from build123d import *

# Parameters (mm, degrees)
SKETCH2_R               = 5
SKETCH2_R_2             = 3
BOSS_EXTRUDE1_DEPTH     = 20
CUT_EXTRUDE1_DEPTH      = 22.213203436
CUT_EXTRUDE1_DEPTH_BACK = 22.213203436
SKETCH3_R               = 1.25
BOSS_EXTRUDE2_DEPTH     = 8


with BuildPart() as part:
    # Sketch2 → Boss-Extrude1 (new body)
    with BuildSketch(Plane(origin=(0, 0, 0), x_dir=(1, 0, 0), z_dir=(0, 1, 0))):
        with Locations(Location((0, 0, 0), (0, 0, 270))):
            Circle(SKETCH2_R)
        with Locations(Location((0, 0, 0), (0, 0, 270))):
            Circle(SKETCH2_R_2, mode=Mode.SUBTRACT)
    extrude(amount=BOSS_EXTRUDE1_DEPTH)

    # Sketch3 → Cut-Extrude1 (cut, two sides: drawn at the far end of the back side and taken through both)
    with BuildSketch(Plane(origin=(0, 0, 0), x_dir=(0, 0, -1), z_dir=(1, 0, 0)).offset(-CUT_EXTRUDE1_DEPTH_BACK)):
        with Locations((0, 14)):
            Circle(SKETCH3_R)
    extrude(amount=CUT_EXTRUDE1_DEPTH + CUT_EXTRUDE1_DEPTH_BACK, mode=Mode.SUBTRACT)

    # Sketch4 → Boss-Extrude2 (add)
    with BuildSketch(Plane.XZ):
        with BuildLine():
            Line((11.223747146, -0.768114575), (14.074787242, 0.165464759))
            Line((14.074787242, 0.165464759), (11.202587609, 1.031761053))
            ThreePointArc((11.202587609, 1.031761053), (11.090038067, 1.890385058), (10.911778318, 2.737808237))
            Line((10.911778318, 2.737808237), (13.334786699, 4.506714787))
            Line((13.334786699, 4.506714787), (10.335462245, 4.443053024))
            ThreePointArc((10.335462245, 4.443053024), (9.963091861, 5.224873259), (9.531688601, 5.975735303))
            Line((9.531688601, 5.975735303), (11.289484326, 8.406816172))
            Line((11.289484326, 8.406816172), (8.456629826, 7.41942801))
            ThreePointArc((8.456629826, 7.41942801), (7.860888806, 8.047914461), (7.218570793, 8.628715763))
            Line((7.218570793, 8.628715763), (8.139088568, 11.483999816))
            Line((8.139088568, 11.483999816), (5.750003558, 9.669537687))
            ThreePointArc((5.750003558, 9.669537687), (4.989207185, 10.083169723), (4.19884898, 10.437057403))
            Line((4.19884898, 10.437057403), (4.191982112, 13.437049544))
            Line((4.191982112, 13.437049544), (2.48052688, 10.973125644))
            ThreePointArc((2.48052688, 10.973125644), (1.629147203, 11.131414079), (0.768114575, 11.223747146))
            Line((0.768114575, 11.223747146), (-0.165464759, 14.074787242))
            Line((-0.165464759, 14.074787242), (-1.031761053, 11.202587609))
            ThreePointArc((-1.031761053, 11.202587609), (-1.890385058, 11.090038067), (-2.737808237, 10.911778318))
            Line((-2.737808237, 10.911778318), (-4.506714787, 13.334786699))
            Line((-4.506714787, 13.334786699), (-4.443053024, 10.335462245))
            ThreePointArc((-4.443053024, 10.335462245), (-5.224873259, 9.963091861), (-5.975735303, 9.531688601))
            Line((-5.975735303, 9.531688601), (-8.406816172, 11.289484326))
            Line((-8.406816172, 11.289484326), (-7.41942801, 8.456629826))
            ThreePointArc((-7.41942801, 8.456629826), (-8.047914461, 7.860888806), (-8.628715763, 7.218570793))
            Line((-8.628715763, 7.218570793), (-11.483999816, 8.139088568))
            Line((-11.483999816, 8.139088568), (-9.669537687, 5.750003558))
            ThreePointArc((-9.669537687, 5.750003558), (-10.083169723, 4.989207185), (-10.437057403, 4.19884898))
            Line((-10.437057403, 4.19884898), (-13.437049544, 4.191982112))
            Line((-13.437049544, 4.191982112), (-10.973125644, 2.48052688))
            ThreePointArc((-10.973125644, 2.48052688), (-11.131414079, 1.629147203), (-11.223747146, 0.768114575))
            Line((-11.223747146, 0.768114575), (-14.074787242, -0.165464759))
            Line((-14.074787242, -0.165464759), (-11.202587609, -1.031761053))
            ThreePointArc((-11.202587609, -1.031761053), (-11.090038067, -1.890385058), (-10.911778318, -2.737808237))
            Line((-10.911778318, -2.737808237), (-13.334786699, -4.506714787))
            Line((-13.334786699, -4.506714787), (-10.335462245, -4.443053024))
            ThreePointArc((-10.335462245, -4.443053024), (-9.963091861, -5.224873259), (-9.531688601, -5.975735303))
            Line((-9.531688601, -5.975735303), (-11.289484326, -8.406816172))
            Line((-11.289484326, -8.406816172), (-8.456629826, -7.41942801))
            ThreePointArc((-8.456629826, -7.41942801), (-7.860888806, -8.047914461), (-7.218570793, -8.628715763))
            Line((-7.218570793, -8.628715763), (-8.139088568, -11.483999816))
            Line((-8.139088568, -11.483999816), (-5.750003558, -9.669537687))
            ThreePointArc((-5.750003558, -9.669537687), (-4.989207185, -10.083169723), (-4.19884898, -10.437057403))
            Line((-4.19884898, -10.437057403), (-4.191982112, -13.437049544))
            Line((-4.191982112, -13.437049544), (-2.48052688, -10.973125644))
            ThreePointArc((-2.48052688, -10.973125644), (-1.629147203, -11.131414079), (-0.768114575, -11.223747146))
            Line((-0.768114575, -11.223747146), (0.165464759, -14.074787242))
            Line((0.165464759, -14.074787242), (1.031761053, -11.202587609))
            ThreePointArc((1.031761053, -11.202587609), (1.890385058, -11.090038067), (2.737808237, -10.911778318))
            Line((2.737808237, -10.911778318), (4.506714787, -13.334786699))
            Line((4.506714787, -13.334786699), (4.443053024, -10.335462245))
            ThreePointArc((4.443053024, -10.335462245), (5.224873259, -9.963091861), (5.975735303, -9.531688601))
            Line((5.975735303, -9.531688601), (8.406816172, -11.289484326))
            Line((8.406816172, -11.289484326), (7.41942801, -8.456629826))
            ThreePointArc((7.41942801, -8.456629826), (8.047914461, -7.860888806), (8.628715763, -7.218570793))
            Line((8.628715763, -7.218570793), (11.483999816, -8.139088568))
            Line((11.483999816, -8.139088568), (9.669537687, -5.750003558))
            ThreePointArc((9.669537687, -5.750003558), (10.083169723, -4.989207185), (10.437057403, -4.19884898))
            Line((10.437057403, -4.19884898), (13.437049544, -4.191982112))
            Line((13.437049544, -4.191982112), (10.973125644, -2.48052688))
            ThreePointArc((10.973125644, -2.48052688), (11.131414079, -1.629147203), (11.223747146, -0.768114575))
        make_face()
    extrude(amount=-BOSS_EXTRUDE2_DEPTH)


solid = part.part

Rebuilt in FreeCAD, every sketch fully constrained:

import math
import FreeCAD as App
import Part
import Sketcher
from FreeCAD import Vector
Q = App.Units.Quantity

doc = App.newDocument("Part")
params = doc.addObject("Spreadsheet::Sheet", "Params")
for row, (alias, value) in enumerate([
    ("sketch1_diameter", "10 mm"),
    ("sketch1_diameter2", "6 mm"),
    ("pad1_length", "20 mm"),
    ("sketch2_diameter", "2.5 mm"),
    ("sketch3_radius", "11.25 mm"),
    ("sketch3_length", "3 mm"),
    ("pad2_length", "8 mm"),
], start=1):
    params.set(f"A{row}", alias)
    params.set(f"B{row}", "=" + value)
    params.setAlias(f"B{row}", alias)

body = doc.addObject("PartDesign::Body", "Body")

sketch1 = body.newObject("Sketcher::SketchObject", "Sketch")
sketch1.AttachmentSupport = (doc.getObject("XZ_Plane"), [""])
sketch1.MapMode = "FlatFace"
sketch1.addGeometry([
    Part.Circle(Vector(0, 0, 0), Vector(0, 0, 1), 5),
    Part.Circle(Vector(0, 0, 0), Vector(0, 0, 1), 3),
], False)
sketch1.addConstraint([
    Sketcher.Constraint("Coincident", 0, 3, -1, 1),
    Sketcher.Constraint("Coincident", 1, 3, -1, 1),
    Sketcher.Constraint("Diameter", 0, Q("10 mm")),
    Sketcher.Constraint("Diameter", 1, Q("6 mm")),
])
sketch1.setExpression("Constraints[2]", "Params.sketch1_diameter")
sketch1.setExpression("Constraints[3]", "Params.sketch1_diameter2")
pad1 = body.newObject("PartDesign::Pad", "Pad")
pad1.Profile = sketch1
pad1.setExpression("Length", "Params.pad1_length")
pad1.Reversed = True

sketch2 = body.newObject("Sketcher::SketchObject", "Sketch001")
sketch2.AttachmentSupport = (doc.getObject("YZ_Plane"), [""])
sketch2.MapMode = "FlatFace"
sketch2.addGeometry(Part.Circle(Vector(14, 0, 0), Vector(0, 0, 1), 1.25), False)
sketch2.addConstraint([
    Sketcher.Constraint("PointOnObject", 0, 3, -1),
    Sketcher.Constraint("Diameter", 0, Q("2.5 mm")),
    Sketcher.Constraint("DistanceX", -1, 1, 0, 3, Q("14 mm")),
])
sketch2.setExpression("Constraints[1]", "Params.sketch2_diameter")
pocket1 = body.newObject("PartDesign::Pocket", "Pocket")
pocket1.Profile = sketch2
pocket1.Type = "ThroughAll"
pocket1.Midplane = True

sketch3 = body.newObject("Sketcher::SketchObject", "Sketch002")
sketch3.AttachmentSupport = (doc.getObject("XZ_Plane"), [""])
sketch3.MapMode = "FlatFace"
sketch3.addGeometry([
    Part.LineSegment(Vector(11.223747, -0.768115, 0), Vector(14.074787, 0.165465, 0)),
    Part.LineSegment(Vector(14.074787, 0.165465, 0), Vector(11.202588, 1.031761, 0)),
    Part.ArcOfCircle(Part.Circle(Vector(0, 0, 0), Vector(0, 0, 1), 11.25), math.radians(5.26211), math.radians(14.084979)),
    Part.LineSegment(Vector(10.911778, 2.737808, 0), Vector(13.334787, 4.506715, 0)),
    Part.LineSegment(Vector(13.334787, 4.506715, 0), Vector(10.335462, 4.443053, 0)),
    Part.ArcOfCircle(Part.Circle(Vector(0, 0, 0), Vector(0, 0, 1), 11.25), math.radians(23.26211), math.radians(32.084979)),
    Part.LineSegment(Vector(9.531689, 5.975735, 0), Vector(11.289484, 8.406816, 0)),
    Part.LineSegment(Vector(11.289484, 8.406816, 0), Vector(8.45663, 7.419428, 0)),
    Part.ArcOfCircle(Part.Circle(Vector(0, 0, 0), Vector(0, 0, 1), 11.25), math.radians(41.26211), math.radians(50.084979)),
    Part.LineSegment(Vector(7.218571, 8.628716, 0), Vector(8.139089, 11.484, 0)),
    Part.LineSegment(Vector(8.139089, 11.484, 0), Vector(5.750004, 9.669538, 0)),
    Part.ArcOfCircle(Part.Circle(Vector(0, 0, 0), Vector(0, 0, 1), 11.25), math.radians(59.26211), math.radians(68.084979)),
    Part.LineSegment(Vector(4.198849, 10.437057, 0), Vector(4.191982, 13.43705, 0)),
    Part.LineSegment(Vector(4.191982, 13.43705, 0), Vector(2.480527, 10.973126, 0)),
    Part.ArcOfCircle(Part.Circle(Vector(0, 0, 0), Vector(0, 0, 1), 11.25), math.radians(77.26211), math.radians(86.084979)),
    Part.LineSegment(Vector(0.768115, 11.223747, 0), Vector(-0.165465, 14.074787, 0)),
    Part.LineSegment(Vector(-0.165465, 14.074787, 0), Vector(-1.031761, 11.202588, 0)),
    Part.ArcOfCircle(Part.Circle(Vector(0, 0, 0), Vector(0, 0, 1), 11.25), math.radians(95.26211), math.radians(104.084979)),
    Part.LineSegment(Vector(-2.737808, 10.911778, 0), Vector(-4.506715, 13.334787, 0)),
    Part.LineSegment(Vector(-4.506715, 13.334787, 0), Vector(-4.443053, 10.335462, 0)),
    Part.ArcOfCircle(Part.Circle(Vector(0, 0, 0), Vector(0, 0, 1), 11.25), math.radians(113.26211), math.radians(122.084979)),
    Part.LineSegment(Vector(-5.975735, 9.531689, 0), Vector(-8.406816, 11.289484, 0)),
    Part.LineSegment(Vector(-8.406816, 11.289484, 0), Vector(-7.419428, 8.45663, 0)),
    Part.ArcOfCircle(Part.Circle(Vector(0, 0, 0), Vector(0, 0, 1), 11.25), math.radians(131.26211), math.radians(140.084979)),
    Part.LineSegment(Vector(-8.628716, 7.218571, 0), Vector(-11.484, 8.139089, 0)),
    Part.LineSegment(Vector(-11.484, 8.139089, 0), Vector(-9.669538, 5.750004, 0)),
    Part.ArcOfCircle(Part.Circle(Vector(0, 0, 0), Vector(0, 0, 1), 11.25), math.radians(149.26211), math.radians(158.084979)),
    Part.LineSegment(Vector(-10.437057, 4.198849, 0), Vector(-13.43705, 4.191982, 0)),
    Part.LineSegment(Vector(-13.43705, 4.191982, 0), Vector(-10.973126, 2.480527, 0)),
    Part.ArcOfCircle(Part.Circle(Vector(0, 0, 0), Vector(0, 0, 1), 11.25), math.radians(167.26211), math.radians(176.084979)),
    Part.LineSegment(Vector(-11.223747, 0.768115, 0), Vector(-14.074787, -0.165465, 0)),
    Part.LineSegment(Vector(-14.074787, -0.165465, 0), Vector(-11.202588, -1.031761, 0)),
    Part.ArcOfCircle(Part.Circle(Vector(0, 0, 0), Vector(0, 0, 1), 11.25), math.radians(-174.73789), math.radians(-165.915021)),
    Part.LineSegment(Vector(-10.911778, -2.737808, 0), Vector(-13.334787, -4.506715, 0)),
    Part.LineSegment(Vector(-13.334787, -4.506715, 0), Vector(-10.335462, -4.443053, 0)),
    Part.ArcOfCircle(Part.Circle(Vector(0, 0, 0), Vector(0, 0, 1), 11.25), math.radians(-156.73789), math.radians(-147.915021)),
    Part.LineSegment(Vector(-9.531689, -5.975735, 0), Vector(-11.289484, -8.406816, 0)),
    Part.LineSegment(Vector(-11.289484, -8.406816, 0), Vector(-8.45663, -7.419428, 0)),
    Part.ArcOfCircle(Part.Circle(Vector(0, 0, 0), Vector(0, 0, 1), 11.25), math.radians(-138.73789), math.radians(-129.915021)),
    Part.LineSegment(Vector(-7.218571, -8.628716, 0), Vector(-8.139089, -11.484, 0)),
    Part.LineSegment(Vector(-8.139089, -11.484, 0), Vector(-5.750004, -9.669538, 0)),
    Part.ArcOfCircle(Part.Circle(Vector(0, 0, 0), Vector(0, 0, 1), 11.25), math.radians(-120.73789), math.radians(-111.915021)),
    Part.LineSegment(Vector(-4.198849, -10.437057, 0), Vector(-4.191982, -13.43705, 0)),
    Part.LineSegment(Vector(-4.191982, -13.43705, 0), Vector(-2.480527, -10.973126, 0)),
    Part.ArcOfCircle(Part.Circle(Vector(0, 0, 0), Vector(0, 0, 1), 11.25), math.radians(-102.73789), math.radians(-93.915021)),
    Part.LineSegment(Vector(-0.768115, -11.223747, 0), Vector(0.165465, -14.074787, 0)),
    Part.LineSegment(Vector(0.165465, -14.074787, 0), Vector(1.031761, -11.202588, 0)),
    Part.ArcOfCircle(Part.Circle(Vector(0, 0, 0), Vector(0, 0, 1), 11.25), math.radians(-84.73789), math.radians(-75.915021)),
    Part.LineSegment(Vector(2.737808, -10.911778, 0), Vector(4.506715, -13.334787, 0)),
    Part.LineSegment(Vector(4.506715, -13.334787, 0), Vector(4.443053, -10.335462, 0)),
    Part.ArcOfCircle(Part.Circle(Vector(0, 0, 0), Vector(0, 0, 1), 11.25), math.radians(-66.73789), math.radians(-57.915021)),
    Part.LineSegment(Vector(5.975735, -9.531689, 0), Vector(8.406816, -11.289484, 0)),
    Part.LineSegment(Vector(8.406816, -11.289484, 0), Vector(7.419428, -8.45663, 0)),
    Part.ArcOfCircle(Part.Circle(Vector(0, 0, 0), Vector(0, 0, 1), 11.25), math.radians(-48.73789), math.radians(-39.915021)),
    Part.LineSegment(Vector(8.628716, -7.218571, 0), Vector(11.484, -8.139089, 0)),
    Part.LineSegment(Vector(11.484, -8.139089, 0), Vector(9.669538, -5.750004, 0)),
    Part.ArcOfCircle(Part.Circle(Vector(0, 0, 0), Vector(0, 0, 1), 11.25), math.radians(-30.73789), math.radians(-21.915021)),
    Part.LineSegment(Vector(10.437057, -4.198849, 0), Vector(13.43705, -4.191982, 0)),
    Part.LineSegment(Vector(13.43705, -4.191982, 0), Vector(10.973126, -2.480527, 0)),
    Part.ArcOfCircle(Part.Circle(Vector(0, 0, 0), Vector(0, 0, 1), 11.25), math.radians(-12.73789), math.radians(-3.915021)),
], False)
sketch3.addConstraint([
    Sketcher.Constraint("Coincident", 0, 2, 1, 1),
    Sketcher.Constraint("Coincident", 1, 2, 2, 1),
    Sketcher.Constraint("Coincident", 2, 2, 3, 1),
    Sketcher.Constraint("Coincident", 3, 2, 4, 1),
    Sketcher.Constraint("Coincident", 4, 2, 5, 1),
    Sketcher.Constraint("Coincident", 5, 2, 6, 1),
    Sketcher.Constraint("Coincident", 6, 2, 7, 1),
    Sketcher.Constraint("Coincident", 7, 2, 8, 1),
    Sketcher.Constraint("Coincident", 8, 2, 9, 1),
    Sketcher.Constraint("Coincident", 9, 2, 10, 1),
    Sketcher.Constraint("Coincident", 10, 2, 11, 1),
    Sketcher.Constraint("Coincident", 11, 2, 12, 1),
    Sketcher.Constraint("Coincident", 12, 2, 13, 1),
    Sketcher.Constraint("Coincident", 13, 2, 14, 1),
    Sketcher.Constraint("Coincident", 14, 2, 15, 1),
    Sketcher.Constraint("Coincident", 15, 2, 16, 1),
    Sketcher.Constraint("Coincident", 16, 2, 17, 1),
    Sketcher.Constraint("Coincident", 17, 2, 18, 1),
    Sketcher.Constraint("Coincident", 18, 2, 19, 1),
    Sketcher.Constraint("Coincident", 19, 2, 20, 1),
    Sketcher.Constraint("Coincident", 20, 2, 21, 1),
    Sketcher.Constraint("Coincident", 21, 2, 22, 1),
    Sketcher.Constraint("Coincident", 22, 2, 23, 1),
    Sketcher.Constraint("Coincident", 23, 2, 24, 1),
    Sketcher.Constraint("Coincident", 24, 2, 25, 1),
    Sketcher.Constraint("Coincident", 25, 2, 26, 1),
    Sketcher.Constraint("Coincident", 26, 2, 27, 1),
    Sketcher.Constraint("Coincident", 27, 2, 28, 1),
    Sketcher.Constraint("Coincident", 28, 2, 29, 1),
    Sketcher.Constraint("Coincident", 29, 2, 30, 1),
    Sketcher.Constraint("Coincident", 30, 2, 31, 1),
    Sketcher.Constraint("Coincident", 31, 2, 32, 1),
    Sketcher.Constraint("Coincident", 32, 2, 33, 1),
    Sketcher.Constraint("Coincident", 33, 2, 34, 1),
    Sketcher.Constraint("Coincident", 34, 2, 35, 1),
    Sketcher.Constraint("Coincident", 35, 2, 36, 1),
    Sketcher.Constraint("Coincident", 36, 2, 37, 1),
    Sketcher.Constraint("Coincident", 37, 2, 38, 1),
    Sketcher.Constraint("Coincident", 38, 2, 39, 1),
    Sketcher.Constraint("Coincident", 39, 2, 40, 1),
    Sketcher.Constraint("Coincident", 40, 2, 41, 1),
    Sketcher.Constraint("Coincident", 41, 2, 42, 1),
    Sketcher.Constraint("Coincident", 42, 2, 43, 1),
    Sketcher.Constraint("Coincident", 43, 2, 44, 1),
    Sketcher.Constraint("Coincident", 44, 2, 45, 1),
    Sketcher.Constraint("Coincident", 45, 2, 46, 1),
    Sketcher.Constraint("Coincident", 46, 2, 47, 1),
    Sketcher.Constraint("Coincident", 47, 2, 48, 1),
    Sketcher.Constraint("Coincident", 48, 2, 49, 1),
    Sketcher.Constraint("Coincident", 49, 2, 50, 1),
    Sketcher.Constraint("Coincident", 50, 2, 51, 1),
    Sketcher.Constraint("Coincident", 51, 2, 52, 1),
    Sketcher.Constraint("Coincident", 52, 2, 53, 1),
    Sketcher.Constraint("Coincident", 53, 2, 54, 1),
    Sketcher.Constraint("Coincident", 54, 2, 55, 1),
    Sketcher.Constraint("Coincident", 55, 2, 56, 1),
    Sketcher.Constraint("Coincident", 56, 2, 57, 1),
    Sketcher.Constraint("Coincident", 57, 2, 58, 1),
    Sketcher.Constraint("Coincident", 58, 2, 59, 1),
    Sketcher.Constraint("Coincident", 59, 2, 0, 1),
    Sketcher.Constraint("Coincident", 2, 3, -1, 1),
    Sketcher.Constraint("Coincident", 5, 3, -1, 1),
    Sketcher.Constraint("Coincident", 8, 3, -1, 1),
    Sketcher.Constraint("Coincident", 11, 3, -1, 1),
    Sketcher.Constraint("Coincident", 14, 3, -1, 1),
    Sketcher.Constraint("Coincident", 17, 3, -1, 1),
    Sketcher.Constraint("Coincident", 20, 3, -1, 1),
    Sketcher.Constraint("Coincident", 23, 3, -1, 1),
    Sketcher.Constraint("Coincident", 26, 3, -1, 1),
    Sketcher.Constraint("Coincident", 29, 3, -1, 1),
    Sketcher.Constraint("Coincident", 32, 3, -1, 1),
    Sketcher.Constraint("Coincident", 35, 3, -1, 1),
    Sketcher.Constraint("Coincident", 38, 3, -1, 1),
    Sketcher.Constraint("Coincident", 41, 3, -1, 1),
    Sketcher.Constraint("Coincident", 44, 3, -1, 1),
    Sketcher.Constraint("Coincident", 47, 3, -1, 1),
    Sketcher.Constraint("Coincident", 50, 3, -1, 1),
    Sketcher.Constraint("Coincident", 53, 3, -1, 1),
    Sketcher.Constraint("Coincident", 56, 3, -1, 1),
    Sketcher.Constraint("Coincident", 59, 3, -1, 1),
    Sketcher.Constraint("Equal", 2, 5),
    Sketcher.Constraint("Equal", 5, 8),
    Sketcher.Constraint("Equal", 8, 11),
    Sketcher.Constraint("Equal", 11, 14),
    Sketcher.Constraint("Equal", 14, 17),
    Sketcher.Constraint("Equal", 17, 20),
    Sketcher.Constraint("Equal", 20, 23),
    Sketcher.Constraint("Equal", 23, 26),
    Sketcher.Constraint("Equal", 26, 29),
    Sketcher.Constraint("Equal", 29, 32),
    Sketcher.Constraint("Equal", 32, 35),
    Sketcher.Constraint("Equal", 35, 38),
    Sketcher.Constraint("Equal", 38, 41),
    Sketcher.Constraint("Equal", 41, 44),
    Sketcher.Constraint("Equal", 44, 47),
    Sketcher.Constraint("Equal", 47, 50),
    Sketcher.Constraint("Equal", 50, 53),
    Sketcher.Constraint("Equal", 53, 56),
    Sketcher.Constraint("Equal", 56, 59),
    Sketcher.Constraint("Symmetric", 0, 2, 30, 2, -1, 1),
    Sketcher.Constraint("Symmetric", 3, 2, 33, 2, -1, 1),
    Sketcher.Constraint("Symmetric", 6, 2, 36, 2, -1, 1),
    Sketcher.Constraint("Symmetric", 9, 2, 39, 2, -1, 1),
    Sketcher.Constraint("Symmetric", 12, 2, 42, 2, -1, 1),
    Sketcher.Constraint("Symmetric", 15, 2, 45, 2, -1, 1),
    Sketcher.Constraint("Symmetric", 18, 2, 48, 2, -1, 1),
    Sketcher.Constraint("Symmetric", 21, 2, 51, 2, -1, 1),
    Sketcher.Constraint("Symmetric", 24, 2, 54, 2, -1, 1),
    Sketcher.Constraint("Symmetric", 27, 2, 57, 2, -1, 1),
    Sketcher.Constraint("Perpendicular", 0, 15),
    Sketcher.Constraint("Perpendicular", 1, 16),
    Sketcher.Constraint("Perpendicular", 3, 18),
    Sketcher.Constraint("Perpendicular", 4, 19),
    Sketcher.Constraint("Perpendicular", 6, 21),
    Sketcher.Constraint("Perpendicular", 7, 22),
    Sketcher.Constraint("Perpendicular", 9, 24),
    Sketcher.Constraint("Perpendicular", 10, 25),
    Sketcher.Constraint("Perpendicular", 12, 27),
    Sketcher.Constraint("Perpendicular", 13, 28),
    Sketcher.Constraint("Perpendicular", 15, 30),
    Sketcher.Constraint("Perpendicular", 16, 31),
    Sketcher.Constraint("Perpendicular", 18, 33),
    Sketcher.Constraint("Perpendicular", 19, 34),
    Sketcher.Constraint("Perpendicular", 21, 36),
    Sketcher.Constraint("Perpendicular", 22, 37),
    Sketcher.Constraint("Perpendicular", 24, 39),
    Sketcher.Constraint("Perpendicular", 25, 40),
    Sketcher.Constraint("Perpendicular", 27, 42),
    Sketcher.Constraint("Perpendicular", 28, 43),
    Sketcher.Constraint("Perpendicular", 30, 45),
    Sketcher.Constraint("Perpendicular", 31, 46),
    Sketcher.Constraint("Perpendicular", 33, 48),
    Sketcher.Constraint("Perpendicular", 34, 49),
    Sketcher.Constraint("Perpendicular", 36, 51),
    Sketcher.Constraint("Perpendicular", 37, 52),
    Sketcher.Constraint("Perpendicular", 39, 54),
    Sketcher.Constraint("Perpendicular", 40, 55),
    Sketcher.Constraint("Perpendicular", 42, 57),
    Sketcher.Constraint("Perpendicular", 43, 58),
    Sketcher.Constraint("Equal", 0, 1),
    Sketcher.Constraint("Equal", 1, 3),
    Sketcher.Constraint("Equal", 3, 4),
    Sketcher.Constraint("Equal", 4, 6),
    Sketcher.Constraint("Equal", 6, 7),
    Sketcher.Constraint("Equal", 7, 9),
    Sketcher.Constraint("Equal", 9, 10),
    Sketcher.Constraint("Equal", 10, 12),
    Sketcher.Constraint("Equal", 12, 13),
    Sketcher.Constraint("Equal", 13, 15),
    Sketcher.Constraint("Equal", 15, 16),
    Sketcher.Constraint("Equal", 16, 18),
    Sketcher.Constraint("Equal", 18, 19),
    Sketcher.Constraint("Equal", 19, 21),
    Sketcher.Constraint("Equal", 21, 22),
    Sketcher.Constraint("Equal", 22, 24),
    Sketcher.Constraint("Equal", 24, 25),
    Sketcher.Constraint("Equal", 25, 27),
    Sketcher.Constraint("Equal", 27, 28),
    Sketcher.Constraint("Radius", 2, Q("11.25 mm")),
    Sketcher.Constraint("Distance", 0, Q("3 mm")),
    Sketcher.Constraint("DistanceY", -1, 1, 9, 2, Q("11.484 mm")),
    Sketcher.Constraint("DistanceY", -1, 1, 1, 2, Q("1.031761 mm")),
    Sketcher.Constraint("DistanceX", -1, 1, 2, 2, Q("10.911778 mm")),
    Sketcher.Constraint("DistanceX", -1, 1, 5, 2, Q("9.531689 mm")),
    Sketcher.Constraint("DistanceX", -1, 1, 7, 2, Q("8.45663 mm")),
    Sketcher.Constraint("DistanceX", -1, 1, 8, 2, Q("7.218571 mm")),
    Sketcher.Constraint("DistanceX", -1, 1, 11, 2, Q("4.198849 mm")),
    Sketcher.Constraint("DistanceX", -1, 1, 0, 2, Q("14.074787 mm")),
    Sketcher.Constraint("DistanceX", -1, 1, 3, 2, Q("13.334787 mm")),
    Sketcher.Constraint("DistanceX", -1, 1, 12, 2, Q("4.191982 mm")),
])
sketch3.setExpression("Constraints[158]", "Params.sketch3_radius")
sketch3.setExpression("Constraints[159]", "Params.sketch3_length")
pad2 = body.newObject("PartDesign::Pad", "Pad001")
pad2.Profile = sketch3
pad2.setExpression("Length", "Params.pad2_length")
pad2.Reversed = True

doc.recompute()
